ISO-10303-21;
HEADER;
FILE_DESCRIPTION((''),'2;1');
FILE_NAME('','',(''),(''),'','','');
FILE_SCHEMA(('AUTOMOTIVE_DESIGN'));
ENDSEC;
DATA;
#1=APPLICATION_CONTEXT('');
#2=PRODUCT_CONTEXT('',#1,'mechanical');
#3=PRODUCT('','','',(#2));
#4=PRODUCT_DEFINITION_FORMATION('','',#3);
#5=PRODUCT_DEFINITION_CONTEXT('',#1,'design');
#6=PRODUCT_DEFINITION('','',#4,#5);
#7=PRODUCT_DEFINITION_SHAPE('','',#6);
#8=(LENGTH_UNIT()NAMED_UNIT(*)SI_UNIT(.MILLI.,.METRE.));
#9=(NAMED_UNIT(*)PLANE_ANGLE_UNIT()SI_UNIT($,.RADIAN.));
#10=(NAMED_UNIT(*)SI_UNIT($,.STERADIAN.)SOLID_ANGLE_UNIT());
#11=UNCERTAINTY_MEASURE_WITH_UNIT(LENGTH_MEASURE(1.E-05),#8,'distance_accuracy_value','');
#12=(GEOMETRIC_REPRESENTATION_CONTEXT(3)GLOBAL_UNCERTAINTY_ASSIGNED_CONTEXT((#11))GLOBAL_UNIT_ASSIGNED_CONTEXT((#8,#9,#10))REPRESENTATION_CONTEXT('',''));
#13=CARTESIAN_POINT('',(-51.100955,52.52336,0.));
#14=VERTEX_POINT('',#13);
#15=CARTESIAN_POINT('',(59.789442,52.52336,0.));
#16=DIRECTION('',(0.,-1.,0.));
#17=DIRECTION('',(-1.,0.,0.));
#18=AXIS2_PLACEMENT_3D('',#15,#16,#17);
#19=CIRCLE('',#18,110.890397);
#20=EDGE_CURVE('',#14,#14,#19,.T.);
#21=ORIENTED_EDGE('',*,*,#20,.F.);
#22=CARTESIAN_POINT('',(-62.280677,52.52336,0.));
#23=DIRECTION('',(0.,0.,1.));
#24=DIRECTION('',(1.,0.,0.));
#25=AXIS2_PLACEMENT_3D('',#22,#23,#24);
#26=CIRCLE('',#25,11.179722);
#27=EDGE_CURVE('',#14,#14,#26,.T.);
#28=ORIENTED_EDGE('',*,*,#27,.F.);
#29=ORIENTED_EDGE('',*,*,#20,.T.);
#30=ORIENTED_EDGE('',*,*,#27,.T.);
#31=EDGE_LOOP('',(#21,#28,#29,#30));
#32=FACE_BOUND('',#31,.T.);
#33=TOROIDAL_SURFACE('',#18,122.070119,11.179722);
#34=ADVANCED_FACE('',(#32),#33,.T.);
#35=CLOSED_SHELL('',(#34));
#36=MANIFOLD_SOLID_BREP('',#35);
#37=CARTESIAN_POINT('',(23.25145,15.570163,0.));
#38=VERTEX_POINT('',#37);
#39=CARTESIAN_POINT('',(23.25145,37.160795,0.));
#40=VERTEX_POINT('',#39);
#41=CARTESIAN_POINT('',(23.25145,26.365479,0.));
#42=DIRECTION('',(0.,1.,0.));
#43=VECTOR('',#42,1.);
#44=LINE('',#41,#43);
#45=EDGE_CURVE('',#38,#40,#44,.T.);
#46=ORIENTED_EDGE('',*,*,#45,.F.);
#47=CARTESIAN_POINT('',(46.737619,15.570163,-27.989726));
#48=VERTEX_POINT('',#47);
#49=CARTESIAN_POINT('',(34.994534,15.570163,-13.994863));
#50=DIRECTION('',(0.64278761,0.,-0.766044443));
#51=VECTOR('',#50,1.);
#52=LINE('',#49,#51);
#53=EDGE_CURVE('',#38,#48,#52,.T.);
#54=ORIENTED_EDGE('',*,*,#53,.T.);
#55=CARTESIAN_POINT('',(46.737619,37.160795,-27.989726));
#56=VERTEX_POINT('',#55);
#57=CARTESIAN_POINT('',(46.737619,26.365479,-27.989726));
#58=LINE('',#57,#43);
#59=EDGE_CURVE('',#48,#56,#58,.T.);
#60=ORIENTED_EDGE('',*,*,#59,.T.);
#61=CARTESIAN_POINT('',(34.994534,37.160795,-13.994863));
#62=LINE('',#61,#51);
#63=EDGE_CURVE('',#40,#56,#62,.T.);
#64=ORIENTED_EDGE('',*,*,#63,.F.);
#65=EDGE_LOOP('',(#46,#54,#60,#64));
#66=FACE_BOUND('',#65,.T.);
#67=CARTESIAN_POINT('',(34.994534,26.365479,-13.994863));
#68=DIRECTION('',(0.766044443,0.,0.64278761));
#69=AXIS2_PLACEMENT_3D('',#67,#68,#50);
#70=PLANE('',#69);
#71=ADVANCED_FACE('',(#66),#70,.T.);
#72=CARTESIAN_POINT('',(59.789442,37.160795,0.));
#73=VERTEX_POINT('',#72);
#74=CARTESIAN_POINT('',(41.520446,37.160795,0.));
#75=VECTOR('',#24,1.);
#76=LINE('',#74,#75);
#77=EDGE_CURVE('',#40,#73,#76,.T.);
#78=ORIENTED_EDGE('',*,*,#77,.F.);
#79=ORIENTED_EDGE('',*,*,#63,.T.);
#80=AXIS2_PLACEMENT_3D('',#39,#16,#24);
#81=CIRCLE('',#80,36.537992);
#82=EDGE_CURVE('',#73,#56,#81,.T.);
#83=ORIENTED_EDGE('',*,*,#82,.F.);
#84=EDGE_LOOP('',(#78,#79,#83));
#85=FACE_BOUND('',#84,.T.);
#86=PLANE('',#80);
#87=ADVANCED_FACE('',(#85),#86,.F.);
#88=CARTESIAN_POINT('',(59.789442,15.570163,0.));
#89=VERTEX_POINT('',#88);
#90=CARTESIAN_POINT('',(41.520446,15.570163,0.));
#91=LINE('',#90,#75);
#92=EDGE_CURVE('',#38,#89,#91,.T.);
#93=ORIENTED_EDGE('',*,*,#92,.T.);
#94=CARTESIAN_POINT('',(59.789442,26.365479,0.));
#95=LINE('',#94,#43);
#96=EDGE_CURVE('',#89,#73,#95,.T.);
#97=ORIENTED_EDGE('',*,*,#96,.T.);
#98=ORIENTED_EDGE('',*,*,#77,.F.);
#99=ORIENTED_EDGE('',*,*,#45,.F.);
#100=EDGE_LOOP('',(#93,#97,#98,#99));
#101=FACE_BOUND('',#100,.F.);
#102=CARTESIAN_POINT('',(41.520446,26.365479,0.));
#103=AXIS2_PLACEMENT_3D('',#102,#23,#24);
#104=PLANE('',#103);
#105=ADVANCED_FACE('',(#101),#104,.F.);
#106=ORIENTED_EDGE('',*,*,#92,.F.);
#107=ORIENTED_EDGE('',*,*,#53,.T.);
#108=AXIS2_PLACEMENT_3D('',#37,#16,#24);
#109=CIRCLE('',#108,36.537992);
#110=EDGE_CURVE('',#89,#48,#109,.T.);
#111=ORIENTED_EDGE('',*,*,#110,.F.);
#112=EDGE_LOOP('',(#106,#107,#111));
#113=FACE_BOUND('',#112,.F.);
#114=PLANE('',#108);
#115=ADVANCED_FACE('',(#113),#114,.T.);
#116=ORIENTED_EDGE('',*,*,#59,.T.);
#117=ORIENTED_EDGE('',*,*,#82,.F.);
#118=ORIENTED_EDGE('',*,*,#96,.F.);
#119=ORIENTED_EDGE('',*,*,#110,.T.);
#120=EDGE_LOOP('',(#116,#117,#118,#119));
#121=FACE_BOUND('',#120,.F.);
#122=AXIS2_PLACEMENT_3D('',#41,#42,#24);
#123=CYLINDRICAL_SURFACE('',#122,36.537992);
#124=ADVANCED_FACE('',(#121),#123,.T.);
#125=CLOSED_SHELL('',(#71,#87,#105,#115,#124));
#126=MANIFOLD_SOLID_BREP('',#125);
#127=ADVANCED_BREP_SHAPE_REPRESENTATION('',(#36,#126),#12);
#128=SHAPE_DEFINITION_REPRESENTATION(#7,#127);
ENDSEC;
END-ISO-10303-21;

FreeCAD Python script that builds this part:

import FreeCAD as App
import Part
import Sketcher


def add_polygon(sketch, points):
    """Adds a closed chain of lines whose ends are joined by coincident constraints."""
    first, n = sketch.GeometryCount, len(points)
    for a, b in zip(points, points[1:] + points[:1]):
        sketch.addGeometry(Part.LineSegment(App.Vector(*a, 0), App.Vector(*b, 0)), False)
    for i in range(n):
        sketch.addConstraint(Sketcher.Constraint("Coincident", first + i, 2, first + (i + 1) % n, 1))

doc = App.newDocument("Part")
body = doc.addObject("PartDesign::Body", "Body")

# Sketch on XY plane
sketch1 = doc.addObject("Sketcher::SketchObject", "Sketch")
body.addObject(sketch1)
sketch1.AttachmentSupport = (doc.XY_Plane, [""])
sketch1.MapMode = "FlatFace"
add_polygon(sketch1, [(23.25145, 37.160795), (23.25145, 15.570163), (59.789442, 15.570163), (59.789442, 37.160795)])  # lines 0-3
sketch1.addGeometry(Part.LineSegment(App.Vector(23.25145, 37.160795, 0), App.Vector(23.25145, 15.570163, 0)), True)  # axis
sketch1.addConstraint([
    Sketcher.Constraint("Vertical", 0),
    Sketcher.Constraint("Horizontal", 1),
    Sketcher.Constraint("Vertical", 2),
    Sketcher.Constraint("Horizontal", 3),
    Sketcher.Constraint("Vertical", 4),
    Sketcher.Constraint("Coincident", 4, 1, 3, 2),
    Sketcher.Constraint("Horizontal", 1, 2, 4, 2),
    Sketcher.Constraint("DistanceX", 1, 1, 1, 2, 36.537992),
    Sketcher.Constraint("DistanceY", 0, 2, 0, 1, 21.590633),
    Sketcher.Constraint("DistanceX", -1, 1, 0, 2, 23.25145),
    Sketcher.Constraint("DistanceY", -1, 1, 0, 2, 15.570163),
])
revolution = doc.addObject("PartDesign::Revolution", "Revolution")
body.addObject(revolution)
revolution.Profile = sketch1
revolution.ReferenceAxis = (sketch1, ["Axis0"])
revolution.Angle = 310
body2 = doc.addObject("PartDesign::Body", "Body001")

# Sketch on XY plane
sketch2 = doc.addObject("Sketcher::SketchObject", "Sketch001")
body2.addObject(sketch2)
sketch2.AttachmentSupport = (doc.getObject("XY_Plane001"), [""])
sketch2.MapMode = "FlatFace"
sketch2.addGeometry(Part.Circle(App.Vector(-62.280677, 52.52336, 0), App.Vector(0, 0, 1), 11.179722), False)
sketch2.addGeometry(Part.LineSegment(App.Vector(59.789442, 52.52336, 0), App.Vector(59.789442, 42.52336, 0)), True)  # axis
sketch2.addConstraint([
    Sketcher.Constraint("Vertical", 1),
    Sketcher.Constraint("Horizontal", 0, 3, 1, 1),
    Sketcher.Constraint("DistanceY", 1, 2, 1, 1, 10.0),
    Sketcher.Constraint("Diameter", 0, 22.359444),
    Sketcher.Constraint("DistanceY", -1, 1, 0, 3, 52.52336),
    Sketcher.Constraint("DistanceX", 0, 3, 1, 1, 122.070119),
    Sketcher.Constraint("DistanceX", 0, 3, -1, 1, 62.280677),
])
revolution2 = doc.addObject("PartDesign::Revolution", "Revolution001")
body2.addObject(revolution2)
revolution2.Profile = sketch2
revolution2.ReferenceAxis = (sketch2, ["Axis0"])
revolution2.Angle = 360

doc.recompute()
